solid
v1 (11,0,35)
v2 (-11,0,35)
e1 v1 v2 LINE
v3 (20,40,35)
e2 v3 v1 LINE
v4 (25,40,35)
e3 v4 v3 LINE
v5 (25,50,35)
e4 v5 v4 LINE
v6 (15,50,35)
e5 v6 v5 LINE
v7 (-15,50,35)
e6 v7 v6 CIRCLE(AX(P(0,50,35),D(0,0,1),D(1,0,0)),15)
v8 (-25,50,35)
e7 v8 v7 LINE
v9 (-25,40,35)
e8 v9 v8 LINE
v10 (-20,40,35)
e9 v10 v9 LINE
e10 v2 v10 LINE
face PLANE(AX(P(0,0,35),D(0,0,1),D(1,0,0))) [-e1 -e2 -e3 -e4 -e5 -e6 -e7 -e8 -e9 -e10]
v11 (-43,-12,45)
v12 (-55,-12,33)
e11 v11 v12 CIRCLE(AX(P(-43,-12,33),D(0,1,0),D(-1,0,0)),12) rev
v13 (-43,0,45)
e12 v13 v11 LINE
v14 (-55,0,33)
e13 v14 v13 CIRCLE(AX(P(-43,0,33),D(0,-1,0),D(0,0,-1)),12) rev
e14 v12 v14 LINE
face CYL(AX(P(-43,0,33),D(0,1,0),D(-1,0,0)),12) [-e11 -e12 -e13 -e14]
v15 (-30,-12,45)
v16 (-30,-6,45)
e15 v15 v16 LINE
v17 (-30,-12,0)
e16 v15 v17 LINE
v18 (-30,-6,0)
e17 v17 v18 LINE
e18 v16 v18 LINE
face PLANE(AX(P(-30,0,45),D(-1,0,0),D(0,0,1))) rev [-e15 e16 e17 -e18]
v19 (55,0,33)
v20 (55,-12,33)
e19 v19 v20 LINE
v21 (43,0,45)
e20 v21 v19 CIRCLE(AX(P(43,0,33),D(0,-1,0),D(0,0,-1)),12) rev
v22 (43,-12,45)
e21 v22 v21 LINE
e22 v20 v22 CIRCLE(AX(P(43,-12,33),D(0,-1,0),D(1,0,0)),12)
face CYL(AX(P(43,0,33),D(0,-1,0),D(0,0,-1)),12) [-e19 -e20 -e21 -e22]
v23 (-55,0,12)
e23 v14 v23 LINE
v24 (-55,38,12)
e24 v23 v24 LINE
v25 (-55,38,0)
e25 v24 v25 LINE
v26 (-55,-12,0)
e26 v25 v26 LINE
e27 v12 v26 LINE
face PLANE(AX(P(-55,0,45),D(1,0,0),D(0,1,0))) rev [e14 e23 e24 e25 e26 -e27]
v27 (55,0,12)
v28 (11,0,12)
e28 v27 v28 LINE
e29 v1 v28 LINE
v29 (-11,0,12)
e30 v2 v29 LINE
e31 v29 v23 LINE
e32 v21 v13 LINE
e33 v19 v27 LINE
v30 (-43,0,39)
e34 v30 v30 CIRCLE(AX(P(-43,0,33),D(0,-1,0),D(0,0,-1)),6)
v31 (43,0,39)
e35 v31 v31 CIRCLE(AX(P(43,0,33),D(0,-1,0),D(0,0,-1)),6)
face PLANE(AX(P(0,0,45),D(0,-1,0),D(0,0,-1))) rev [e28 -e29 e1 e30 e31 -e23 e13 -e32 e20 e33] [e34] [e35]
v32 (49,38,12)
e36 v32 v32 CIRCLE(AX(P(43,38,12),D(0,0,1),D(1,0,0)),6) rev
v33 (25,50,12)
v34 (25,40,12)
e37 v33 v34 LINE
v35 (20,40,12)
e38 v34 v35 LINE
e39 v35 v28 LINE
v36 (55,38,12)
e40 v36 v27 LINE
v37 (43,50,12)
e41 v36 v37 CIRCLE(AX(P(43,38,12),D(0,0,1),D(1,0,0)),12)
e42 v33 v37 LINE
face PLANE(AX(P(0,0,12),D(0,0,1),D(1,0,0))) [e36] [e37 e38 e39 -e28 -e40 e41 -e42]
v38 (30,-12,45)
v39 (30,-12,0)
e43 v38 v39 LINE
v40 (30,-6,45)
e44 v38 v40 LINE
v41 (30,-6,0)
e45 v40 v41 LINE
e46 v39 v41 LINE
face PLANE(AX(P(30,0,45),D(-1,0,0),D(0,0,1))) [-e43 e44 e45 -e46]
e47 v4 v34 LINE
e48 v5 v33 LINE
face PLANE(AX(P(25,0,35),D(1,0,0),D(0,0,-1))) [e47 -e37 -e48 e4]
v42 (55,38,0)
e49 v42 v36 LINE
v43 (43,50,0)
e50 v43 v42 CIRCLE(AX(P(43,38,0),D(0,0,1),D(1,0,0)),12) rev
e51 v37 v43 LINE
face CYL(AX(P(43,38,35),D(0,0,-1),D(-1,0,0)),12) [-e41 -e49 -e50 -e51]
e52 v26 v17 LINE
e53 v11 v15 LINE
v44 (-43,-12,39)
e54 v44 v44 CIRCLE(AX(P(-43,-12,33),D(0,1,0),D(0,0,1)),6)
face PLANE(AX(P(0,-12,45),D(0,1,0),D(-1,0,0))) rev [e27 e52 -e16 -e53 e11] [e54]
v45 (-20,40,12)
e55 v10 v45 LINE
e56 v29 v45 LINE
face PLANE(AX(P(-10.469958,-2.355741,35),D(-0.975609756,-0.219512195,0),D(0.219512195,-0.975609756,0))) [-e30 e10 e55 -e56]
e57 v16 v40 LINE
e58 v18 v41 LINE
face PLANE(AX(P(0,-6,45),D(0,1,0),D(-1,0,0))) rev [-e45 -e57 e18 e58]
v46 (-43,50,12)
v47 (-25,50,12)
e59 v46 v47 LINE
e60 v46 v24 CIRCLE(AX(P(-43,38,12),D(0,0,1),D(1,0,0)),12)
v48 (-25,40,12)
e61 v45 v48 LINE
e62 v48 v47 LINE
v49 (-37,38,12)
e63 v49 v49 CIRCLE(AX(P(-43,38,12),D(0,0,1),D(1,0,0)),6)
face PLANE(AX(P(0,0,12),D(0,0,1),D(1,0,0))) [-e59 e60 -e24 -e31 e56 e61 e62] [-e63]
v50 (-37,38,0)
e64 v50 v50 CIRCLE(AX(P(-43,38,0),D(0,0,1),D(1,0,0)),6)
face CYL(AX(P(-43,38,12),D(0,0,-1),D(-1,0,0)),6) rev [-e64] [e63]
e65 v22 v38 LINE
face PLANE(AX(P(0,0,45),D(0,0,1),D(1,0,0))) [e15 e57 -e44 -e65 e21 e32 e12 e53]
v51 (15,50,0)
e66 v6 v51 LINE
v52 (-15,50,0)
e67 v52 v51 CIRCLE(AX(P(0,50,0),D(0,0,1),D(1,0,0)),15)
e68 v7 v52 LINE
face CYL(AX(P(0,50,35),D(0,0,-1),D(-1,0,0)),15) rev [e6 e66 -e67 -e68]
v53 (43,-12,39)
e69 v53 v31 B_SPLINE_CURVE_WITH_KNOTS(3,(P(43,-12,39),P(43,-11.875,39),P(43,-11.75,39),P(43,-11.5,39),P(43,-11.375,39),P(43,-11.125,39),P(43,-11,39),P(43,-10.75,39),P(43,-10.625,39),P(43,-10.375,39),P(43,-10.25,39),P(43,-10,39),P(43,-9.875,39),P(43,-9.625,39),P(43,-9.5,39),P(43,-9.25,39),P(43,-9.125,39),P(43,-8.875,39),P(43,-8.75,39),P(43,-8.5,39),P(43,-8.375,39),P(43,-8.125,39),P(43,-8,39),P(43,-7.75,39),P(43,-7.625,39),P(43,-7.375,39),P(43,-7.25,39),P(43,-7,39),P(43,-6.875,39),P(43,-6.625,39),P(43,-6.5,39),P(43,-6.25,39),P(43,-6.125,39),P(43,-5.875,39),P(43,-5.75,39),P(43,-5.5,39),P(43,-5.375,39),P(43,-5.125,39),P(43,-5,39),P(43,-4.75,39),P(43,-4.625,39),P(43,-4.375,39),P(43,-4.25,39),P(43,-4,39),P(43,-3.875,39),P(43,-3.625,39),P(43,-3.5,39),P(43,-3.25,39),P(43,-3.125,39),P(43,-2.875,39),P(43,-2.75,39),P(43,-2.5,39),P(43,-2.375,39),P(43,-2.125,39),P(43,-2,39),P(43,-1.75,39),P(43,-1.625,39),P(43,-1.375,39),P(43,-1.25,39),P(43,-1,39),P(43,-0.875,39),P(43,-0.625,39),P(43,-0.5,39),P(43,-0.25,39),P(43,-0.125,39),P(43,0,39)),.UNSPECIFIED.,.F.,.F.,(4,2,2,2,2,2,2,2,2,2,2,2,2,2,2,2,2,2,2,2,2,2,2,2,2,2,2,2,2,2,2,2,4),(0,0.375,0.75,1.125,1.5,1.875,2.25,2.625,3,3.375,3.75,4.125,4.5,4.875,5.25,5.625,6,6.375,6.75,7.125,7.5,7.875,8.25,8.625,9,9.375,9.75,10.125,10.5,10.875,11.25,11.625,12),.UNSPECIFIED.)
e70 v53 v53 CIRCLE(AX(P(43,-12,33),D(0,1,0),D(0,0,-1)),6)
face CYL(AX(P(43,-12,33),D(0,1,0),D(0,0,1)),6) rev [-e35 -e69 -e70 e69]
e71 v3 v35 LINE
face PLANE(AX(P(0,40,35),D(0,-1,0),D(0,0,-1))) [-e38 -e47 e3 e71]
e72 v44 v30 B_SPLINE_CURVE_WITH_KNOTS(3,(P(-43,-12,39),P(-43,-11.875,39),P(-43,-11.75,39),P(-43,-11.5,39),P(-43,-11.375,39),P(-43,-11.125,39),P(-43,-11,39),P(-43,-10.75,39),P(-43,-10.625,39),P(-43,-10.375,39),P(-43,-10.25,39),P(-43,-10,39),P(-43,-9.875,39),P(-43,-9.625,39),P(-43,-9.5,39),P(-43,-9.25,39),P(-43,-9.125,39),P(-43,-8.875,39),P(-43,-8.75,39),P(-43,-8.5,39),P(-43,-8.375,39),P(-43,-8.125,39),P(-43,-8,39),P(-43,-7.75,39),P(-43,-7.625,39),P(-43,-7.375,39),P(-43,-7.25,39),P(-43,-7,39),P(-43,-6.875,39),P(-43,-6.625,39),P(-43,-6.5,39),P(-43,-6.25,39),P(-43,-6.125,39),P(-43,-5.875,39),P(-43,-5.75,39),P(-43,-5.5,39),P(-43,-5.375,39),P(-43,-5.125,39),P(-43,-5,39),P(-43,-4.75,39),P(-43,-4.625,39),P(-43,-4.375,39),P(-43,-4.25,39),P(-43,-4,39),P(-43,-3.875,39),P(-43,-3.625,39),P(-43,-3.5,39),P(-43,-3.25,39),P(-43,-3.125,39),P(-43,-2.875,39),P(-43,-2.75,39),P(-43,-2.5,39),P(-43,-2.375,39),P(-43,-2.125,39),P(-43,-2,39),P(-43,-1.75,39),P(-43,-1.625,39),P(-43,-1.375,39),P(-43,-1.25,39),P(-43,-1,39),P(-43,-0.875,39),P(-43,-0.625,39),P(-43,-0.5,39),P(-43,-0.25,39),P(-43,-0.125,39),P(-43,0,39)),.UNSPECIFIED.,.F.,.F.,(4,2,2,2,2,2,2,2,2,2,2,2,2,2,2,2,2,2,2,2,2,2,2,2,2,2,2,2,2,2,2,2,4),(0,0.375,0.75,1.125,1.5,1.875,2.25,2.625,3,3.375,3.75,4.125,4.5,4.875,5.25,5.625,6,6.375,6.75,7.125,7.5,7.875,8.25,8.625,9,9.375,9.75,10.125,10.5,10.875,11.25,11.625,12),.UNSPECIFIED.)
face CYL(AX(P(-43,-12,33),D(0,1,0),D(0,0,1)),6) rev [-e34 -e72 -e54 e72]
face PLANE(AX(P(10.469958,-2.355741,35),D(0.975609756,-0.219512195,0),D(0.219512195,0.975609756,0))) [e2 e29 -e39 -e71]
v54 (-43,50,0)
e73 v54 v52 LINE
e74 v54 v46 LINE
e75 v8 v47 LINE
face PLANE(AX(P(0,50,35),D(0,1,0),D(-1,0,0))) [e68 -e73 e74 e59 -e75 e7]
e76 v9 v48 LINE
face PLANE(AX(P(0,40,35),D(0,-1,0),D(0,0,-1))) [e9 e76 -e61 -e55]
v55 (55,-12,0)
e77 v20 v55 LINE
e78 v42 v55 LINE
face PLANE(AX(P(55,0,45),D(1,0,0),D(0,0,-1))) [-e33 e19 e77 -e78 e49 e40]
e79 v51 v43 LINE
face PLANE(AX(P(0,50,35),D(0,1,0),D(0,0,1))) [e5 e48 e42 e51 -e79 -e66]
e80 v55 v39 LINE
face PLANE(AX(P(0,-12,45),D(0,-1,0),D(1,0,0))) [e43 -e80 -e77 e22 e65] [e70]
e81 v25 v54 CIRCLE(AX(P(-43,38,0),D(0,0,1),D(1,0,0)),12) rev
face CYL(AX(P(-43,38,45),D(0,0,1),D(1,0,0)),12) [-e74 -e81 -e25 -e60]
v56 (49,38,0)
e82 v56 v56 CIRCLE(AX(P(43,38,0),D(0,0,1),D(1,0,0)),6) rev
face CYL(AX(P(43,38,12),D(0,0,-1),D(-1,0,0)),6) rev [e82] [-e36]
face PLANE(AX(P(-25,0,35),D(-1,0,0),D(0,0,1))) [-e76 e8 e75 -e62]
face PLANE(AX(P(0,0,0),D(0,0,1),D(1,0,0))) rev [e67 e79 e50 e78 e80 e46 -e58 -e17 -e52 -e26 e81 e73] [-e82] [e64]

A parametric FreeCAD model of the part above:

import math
import FreeCAD as App
import Part
import Sketcher
from FreeCAD import Vector


def edges_at(feature, points):
    """Names of the edges that pass closest to the given points."""
    edges = feature.Shape.Edges
    near = lambda p: min(range(len(edges)), key=lambda i: edges[i].distToShape(Part.Vertex(*p))[0])
    return sorted({f"Edge{near(p) + 1}" for p in points})

doc = App.newDocument("Part")
body = doc.addObject("PartDesign::Body", "Body")

sketch1 = doc.addObject("Sketcher::SketchObject", "Sketch")
body.addObject(sketch1)
sketch1.AttachmentSupport = (doc.XY_Plane, [""])
sketch1.MapMode = "FlatFace"
sketch1.addGeometry([
    Part.LineSegment(Vector(30, -6, 0), Vector(30, -12, 0)),
    Part.LineSegment(Vector(30, -12, 0), Vector(55, -12, 0)),
    Part.LineSegment(Vector(55, -12, 0), Vector(55, 0, 0)),
    Part.LineSegment(Vector(55, 0, 0), Vector(-55, 0, 0)),
    Part.LineSegment(Vector(-55, 0, 0), Vector(-55, -12, 0)),
    Part.LineSegment(Vector(-55, -12, 0), Vector(-30, -12, 0)),
    Part.LineSegment(Vector(-30, -12, 0), Vector(-30, -6, 0)),
    Part.LineSegment(Vector(-30, -6, 0), Vector(30, -6, 0)),
], False)
sketch1.addConstraint([
    Sketcher.Constraint("Coincident", 0, 2, 1, 1),
    Sketcher.Constraint("Coincident", 1, 2, 2, 1),
    Sketcher.Constraint("Coincident", 2, 2, 3, 1),
    Sketcher.Constraint("Coincident", 3, 2, 4, 1),
    Sketcher.Constraint("Coincident", 4, 2, 5, 1),
    Sketcher.Constraint("Coincident", 5, 2, 6, 1),
    Sketcher.Constraint("Coincident", 6, 2, 7, 1),
    Sketcher.Constraint("Coincident", 7, 2, 0, 1),
    Sketcher.Constraint("Vertical", 0),
    Sketcher.Constraint("Horizontal", 1),
    Sketcher.Constraint("Vertical", 2),
    Sketcher.Constraint("Horizontal", 3),
    Sketcher.Constraint("Vertical", 4),
    Sketcher.Constraint("Horizontal", 5),
    Sketcher.Constraint("Vertical", 6),
    Sketcher.Constraint("Horizontal", 7),
    Sketcher.Constraint("Symmetric", 2, 2, 3, 2, -1, 1),
    Sketcher.Constraint("Symmetric", 0, 2, 5, 2, -2),
    Sketcher.Constraint("DistanceX", 1, 1, 1, 2, 25.0),
    Sketcher.Constraint("DistanceX", 3, 2, 3, 1, 110.0),
    Sketcher.Constraint("DistanceY", 0, 2, 0, 1, 6.0),
    Sketcher.Constraint("DistanceY", 2, 1, 2, 2, 12.0),
])
pad1 = doc.addObject("PartDesign::Pad", "Pad")
body.addObject(pad1)
pad1.Profile = sketch1
pad1.Length = 45

sketch2 = doc.addObject("Sketcher::SketchObject", "Sketch001")
body.addObject(sketch2)
sketch2.AttachmentSupport = (doc.XY_Plane, [""])
sketch2.MapMode = "FlatFace"
sketch2.addGeometry([
    Part.LineSegment(Vector(11, 0, 0), Vector(20, 40, 0)),
    Part.LineSegment(Vector(20, 40, 0), Vector(25, 40, 0)),
    Part.LineSegment(Vector(25, 40, 0), Vector(25, 50, 0)),
    Part.LineSegment(Vector(25, 50, 0), Vector(15, 50, 0)),
    Part.ArcOfCircle(Part.Circle(Vector(0, 50, 0), Vector(0, 0, 1), 15), math.radians(-90), math.radians(0)),
    Part.ArcOfCircle(Part.Circle(Vector(0, 50, 0), Vector(0, 0, 1), 15), math.radians(180), math.radians(270)),
    Part.LineSegment(Vector(-15, 50, 0), Vector(-25, 50, 0)),
    Part.LineSegment(Vector(-25, 50, 0), Vector(-25, 40, 0)),
    Part.LineSegment(Vector(-25, 40, 0), Vector(-20, 40, 0)),
    Part.LineSegment(Vector(-20, 40, 0), Vector(-11, 0, 0)),
    Part.LineSegment(Vector(-11, 0, 0), Vector(11, 0, 0)),
], False)
sketch2.addConstraint([
    Sketcher.Constraint("Coincident", 0, 2, 1, 1),
    Sketcher.Constraint("Coincident", 1, 2, 2, 1),
    Sketcher.Constraint("Coincident", 2, 2, 3, 1),
    Sketcher.Constraint("Coincident", 3, 2, 4, 2),
    Sketcher.Constraint("Tangent", 4, 1, 5, 2),
    Sketcher.Constraint("Coincident", 5, 1, 6, 1),
    Sketcher.Constraint("Coincident", 6, 2, 7, 1),
    Sketcher.Constraint("Coincident", 7, 2, 8, 1),
    Sketcher.Constraint("Coincident", 8, 2, 9, 1),
    Sketcher.Constraint("Coincident", 9, 2, 10, 1),
    Sketcher.Constraint("Coincident", 10, 2, 0, 1),
    Sketcher.Constraint("Horizontal", 1),
    Sketcher.Constraint("Vertical", 2),
    Sketcher.Constraint("Horizontal", 3),
    Sketcher.Constraint("Horizontal", 6),
    Sketcher.Constraint("Vertical", 7),
    Sketcher.Constraint("Horizontal", 8),
    Sketcher.Constraint("Horizontal", 10),
    Sketcher.Constraint("Equal", 4, 5),
    Sketcher.Constraint("Symmetric", 9, 2, 10, 2, -1, 1),
    Sketcher.Constraint("Symmetric", 3, 2, 5, 1, -2),
    Sketcher.Constraint("Symmetric", 1, 2, 7, 2, -2),
    Sketcher.Constraint("PointOnObject", 4, 1, -2),
    Sketcher.Constraint("Horizontal", 5, 3, 2, 2),
    Sketcher.Constraint("Equal", 1, 8),
    Sketcher.Constraint("Equal", 6, 2),
    Sketcher.Constraint("Radius", 4, 15.0),
    Sketcher.Constraint("DistanceX", 1, 1, 1, 2, 5.0),
    Sketcher.Constraint("DistanceX", 3, 2, 3, 1, 10.0),
    Sketcher.Constraint("DistanceX", 10, 1, 10, 2, 22.0),
    Sketcher.Constraint("Distance", 0, 41.0),
])
pad2 = doc.addObject("PartDesign::Pad", "Pad001")
body.addObject(pad2)
pad2.Profile = sketch2
pad2.Length = 35

sketch3 = doc.addObject("Sketcher::SketchObject", "Sketch002")
body.addObject(sketch3)
sketch3.AttachmentSupport = (doc.XY_Plane, [""])
sketch3.MapMode = "FlatFace"
sketch3.addGeometry([
    Part.LineSegment(Vector(11, 0, 0), Vector(55, 0, 0)),
    Part.LineSegment(Vector(55, 0, 0), Vector(55, 50, 0)),
    Part.LineSegment(Vector(55, 50, 0), Vector(25, 50, 0)),
    Part.LineSegment(Vector(25, 50, 0), Vector(25, 40, 0)),
    Part.LineSegment(Vector(25, 40, 0), Vector(20, 40, 0)),
    Part.LineSegment(Vector(20, 40, 0), Vector(11, 0, 0)),
    Part.Circle(Vector(43, 38, 0), Vector(0, 0, 1), 6),
    Part.LineSegment(Vector(-55, 0, 0), Vector(-11, 0, 0)),
    Part.LineSegment(Vector(-11, 0, 0), Vector(-20, 40, 0)),
    Part.LineSegment(Vector(-20, 40, 0), Vector(-25, 40, 0)),
    Part.LineSegment(Vector(-25, 40, 0), Vector(-25, 50, 0)),
    Part.LineSegment(Vector(-25, 50, 0), Vector(-55, 50, 0)),
    Part.LineSegment(Vector(-55, 50, 0), Vector(-55, 0, 0)),
    Part.Circle(Vector(-43, 38, 0), Vector(0, 0, 1), 6),
], False)
sketch3.addConstraint([
    Sketcher.Constraint("Coincident", 0, 2, 1, 1),
    Sketcher.Constraint("Coincident", 1, 2, 2, 1),
    Sketcher.Constraint("Coincident", 2, 2, 3, 1),
    Sketcher.Constraint("Coincident", 3, 2, 4, 1),
    Sketcher.Constraint("Coincident", 4, 2, 5, 1),
    Sketcher.Constraint("Coincident", 5, 2, 0, 1),
    Sketcher.Constraint("Coincident", 7, 2, 8, 1),
    Sketcher.Constraint("Coincident", 8, 2, 9, 1),
    Sketcher.Constraint("Coincident", 9, 2, 10, 1),
    Sketcher.Constraint("Coincident", 10, 2, 11, 1),
    Sketcher.Constraint("Coincident", 11, 2, 12, 1),
    Sketcher.Constraint("Coincident", 12, 2, 7, 1),
    Sketcher.Constraint("Horizontal", 0),
    Sketcher.Constraint("Vertical", 1),
    Sketcher.Constraint("Horizontal", 2),
    Sketcher.Constraint("Vertical", 3),
    Sketcher.Constraint("Horizontal", 4),
    Sketcher.Constraint("Horizontal", 7),
    Sketcher.Constraint("Horizontal", 9),
    Sketcher.Constraint("Vertical", 10),
    Sketcher.Constraint("Horizontal", 11),
    Sketcher.Constraint("Vertical", 12),
    Sketcher.Constraint("Equal", 6, 13),
    Sketcher.Constraint("Symmetric", 5, 2, 7, 2, -1, 1),
    Sketcher.Constraint("Symmetric", 6, 3, 13, 3, -2),
    Sketcher.Constraint("Symmetric", 4, 2, 8, 2, -2),
    Sketcher.Constraint("Symmetric", 2, 2, 10, 2, -2),
    Sketcher.Constraint("Symmetric", 0, 2, 12, 2, -2),
    Sketcher.Constraint("Diameter", 6, 12.0),
    Sketcher.Constraint("DistanceX", 0, 1, 0, 2, 44.0),
    Sketcher.Constraint("DistanceX", 2, 2, 2, 1, 30.0),
    Sketcher.Constraint("DistanceX", 4, 2, 4, 1, 5.0),
    Sketcher.Constraint("DistanceY", 1, 1, 1, 2, 50.0),
    Sketcher.Constraint("DistanceY", 3, 2, 3, 1, 10.0),
    Sketcher.Constraint("DistanceX", -1, 1, 6, 3, 43.0),
    Sketcher.Constraint("DistanceY", -1, 1, 6, 3, 38.0),
    Sketcher.Constraint("DistanceX", -1, 1, 0, 2, 55.0),
])
pad3 = doc.addObject("PartDesign::Pad", "Pad002")
body.addObject(pad3)
pad3.Profile = sketch3
pad3.Length = 12
doc.recompute()

fillet = doc.addObject("PartDesign::Fillet", "Fillet")
body.addObject(fillet)
fillet.Base = (pad3, edges_at(pad3, [
    (55, -6, 45),
    (-55, -6, 45),
    (55, 50, 6),
    (-55, 50, 6),
]))
fillet.Radius = 12

sketch4 = doc.addObject("Sketcher::SketchObject", "Sketch003")
body.addObject(sketch4)
sketch4.AttachmentSupport = (doc.XZ_Plane, [""])
sketch4.MapMode = "FlatFace"
sketch4.addGeometry([
    Part.Circle(Vector(-43, 33, 0), Vector(0, 0, 1), 6),
    Part.Circle(Vector(43, 33, 0), Vector(0, 0, 1), 6),
], False)
sketch4.addConstraint([
    Sketcher.Constraint("Equal", 0, 1),
    Sketcher.Constraint("Symmetric", 0, 3, 1, 3, -2),
    Sketcher.Constraint("Diameter", 0, 12.0),
    Sketcher.Constraint("DistanceX", 0, 3, -1, 1, 43.0),
    Sketcher.Constraint("DistanceY", -1, 1, 0, 3, 33.0),
])
pocket1 = doc.addObject("PartDesign::Pocket", "Pocket")
body.addObject(pocket1)
pocket1.Profile = sketch4
pocket1.Type = "ThroughAll"
pocket1.Midplane = True

doc.recompute()
